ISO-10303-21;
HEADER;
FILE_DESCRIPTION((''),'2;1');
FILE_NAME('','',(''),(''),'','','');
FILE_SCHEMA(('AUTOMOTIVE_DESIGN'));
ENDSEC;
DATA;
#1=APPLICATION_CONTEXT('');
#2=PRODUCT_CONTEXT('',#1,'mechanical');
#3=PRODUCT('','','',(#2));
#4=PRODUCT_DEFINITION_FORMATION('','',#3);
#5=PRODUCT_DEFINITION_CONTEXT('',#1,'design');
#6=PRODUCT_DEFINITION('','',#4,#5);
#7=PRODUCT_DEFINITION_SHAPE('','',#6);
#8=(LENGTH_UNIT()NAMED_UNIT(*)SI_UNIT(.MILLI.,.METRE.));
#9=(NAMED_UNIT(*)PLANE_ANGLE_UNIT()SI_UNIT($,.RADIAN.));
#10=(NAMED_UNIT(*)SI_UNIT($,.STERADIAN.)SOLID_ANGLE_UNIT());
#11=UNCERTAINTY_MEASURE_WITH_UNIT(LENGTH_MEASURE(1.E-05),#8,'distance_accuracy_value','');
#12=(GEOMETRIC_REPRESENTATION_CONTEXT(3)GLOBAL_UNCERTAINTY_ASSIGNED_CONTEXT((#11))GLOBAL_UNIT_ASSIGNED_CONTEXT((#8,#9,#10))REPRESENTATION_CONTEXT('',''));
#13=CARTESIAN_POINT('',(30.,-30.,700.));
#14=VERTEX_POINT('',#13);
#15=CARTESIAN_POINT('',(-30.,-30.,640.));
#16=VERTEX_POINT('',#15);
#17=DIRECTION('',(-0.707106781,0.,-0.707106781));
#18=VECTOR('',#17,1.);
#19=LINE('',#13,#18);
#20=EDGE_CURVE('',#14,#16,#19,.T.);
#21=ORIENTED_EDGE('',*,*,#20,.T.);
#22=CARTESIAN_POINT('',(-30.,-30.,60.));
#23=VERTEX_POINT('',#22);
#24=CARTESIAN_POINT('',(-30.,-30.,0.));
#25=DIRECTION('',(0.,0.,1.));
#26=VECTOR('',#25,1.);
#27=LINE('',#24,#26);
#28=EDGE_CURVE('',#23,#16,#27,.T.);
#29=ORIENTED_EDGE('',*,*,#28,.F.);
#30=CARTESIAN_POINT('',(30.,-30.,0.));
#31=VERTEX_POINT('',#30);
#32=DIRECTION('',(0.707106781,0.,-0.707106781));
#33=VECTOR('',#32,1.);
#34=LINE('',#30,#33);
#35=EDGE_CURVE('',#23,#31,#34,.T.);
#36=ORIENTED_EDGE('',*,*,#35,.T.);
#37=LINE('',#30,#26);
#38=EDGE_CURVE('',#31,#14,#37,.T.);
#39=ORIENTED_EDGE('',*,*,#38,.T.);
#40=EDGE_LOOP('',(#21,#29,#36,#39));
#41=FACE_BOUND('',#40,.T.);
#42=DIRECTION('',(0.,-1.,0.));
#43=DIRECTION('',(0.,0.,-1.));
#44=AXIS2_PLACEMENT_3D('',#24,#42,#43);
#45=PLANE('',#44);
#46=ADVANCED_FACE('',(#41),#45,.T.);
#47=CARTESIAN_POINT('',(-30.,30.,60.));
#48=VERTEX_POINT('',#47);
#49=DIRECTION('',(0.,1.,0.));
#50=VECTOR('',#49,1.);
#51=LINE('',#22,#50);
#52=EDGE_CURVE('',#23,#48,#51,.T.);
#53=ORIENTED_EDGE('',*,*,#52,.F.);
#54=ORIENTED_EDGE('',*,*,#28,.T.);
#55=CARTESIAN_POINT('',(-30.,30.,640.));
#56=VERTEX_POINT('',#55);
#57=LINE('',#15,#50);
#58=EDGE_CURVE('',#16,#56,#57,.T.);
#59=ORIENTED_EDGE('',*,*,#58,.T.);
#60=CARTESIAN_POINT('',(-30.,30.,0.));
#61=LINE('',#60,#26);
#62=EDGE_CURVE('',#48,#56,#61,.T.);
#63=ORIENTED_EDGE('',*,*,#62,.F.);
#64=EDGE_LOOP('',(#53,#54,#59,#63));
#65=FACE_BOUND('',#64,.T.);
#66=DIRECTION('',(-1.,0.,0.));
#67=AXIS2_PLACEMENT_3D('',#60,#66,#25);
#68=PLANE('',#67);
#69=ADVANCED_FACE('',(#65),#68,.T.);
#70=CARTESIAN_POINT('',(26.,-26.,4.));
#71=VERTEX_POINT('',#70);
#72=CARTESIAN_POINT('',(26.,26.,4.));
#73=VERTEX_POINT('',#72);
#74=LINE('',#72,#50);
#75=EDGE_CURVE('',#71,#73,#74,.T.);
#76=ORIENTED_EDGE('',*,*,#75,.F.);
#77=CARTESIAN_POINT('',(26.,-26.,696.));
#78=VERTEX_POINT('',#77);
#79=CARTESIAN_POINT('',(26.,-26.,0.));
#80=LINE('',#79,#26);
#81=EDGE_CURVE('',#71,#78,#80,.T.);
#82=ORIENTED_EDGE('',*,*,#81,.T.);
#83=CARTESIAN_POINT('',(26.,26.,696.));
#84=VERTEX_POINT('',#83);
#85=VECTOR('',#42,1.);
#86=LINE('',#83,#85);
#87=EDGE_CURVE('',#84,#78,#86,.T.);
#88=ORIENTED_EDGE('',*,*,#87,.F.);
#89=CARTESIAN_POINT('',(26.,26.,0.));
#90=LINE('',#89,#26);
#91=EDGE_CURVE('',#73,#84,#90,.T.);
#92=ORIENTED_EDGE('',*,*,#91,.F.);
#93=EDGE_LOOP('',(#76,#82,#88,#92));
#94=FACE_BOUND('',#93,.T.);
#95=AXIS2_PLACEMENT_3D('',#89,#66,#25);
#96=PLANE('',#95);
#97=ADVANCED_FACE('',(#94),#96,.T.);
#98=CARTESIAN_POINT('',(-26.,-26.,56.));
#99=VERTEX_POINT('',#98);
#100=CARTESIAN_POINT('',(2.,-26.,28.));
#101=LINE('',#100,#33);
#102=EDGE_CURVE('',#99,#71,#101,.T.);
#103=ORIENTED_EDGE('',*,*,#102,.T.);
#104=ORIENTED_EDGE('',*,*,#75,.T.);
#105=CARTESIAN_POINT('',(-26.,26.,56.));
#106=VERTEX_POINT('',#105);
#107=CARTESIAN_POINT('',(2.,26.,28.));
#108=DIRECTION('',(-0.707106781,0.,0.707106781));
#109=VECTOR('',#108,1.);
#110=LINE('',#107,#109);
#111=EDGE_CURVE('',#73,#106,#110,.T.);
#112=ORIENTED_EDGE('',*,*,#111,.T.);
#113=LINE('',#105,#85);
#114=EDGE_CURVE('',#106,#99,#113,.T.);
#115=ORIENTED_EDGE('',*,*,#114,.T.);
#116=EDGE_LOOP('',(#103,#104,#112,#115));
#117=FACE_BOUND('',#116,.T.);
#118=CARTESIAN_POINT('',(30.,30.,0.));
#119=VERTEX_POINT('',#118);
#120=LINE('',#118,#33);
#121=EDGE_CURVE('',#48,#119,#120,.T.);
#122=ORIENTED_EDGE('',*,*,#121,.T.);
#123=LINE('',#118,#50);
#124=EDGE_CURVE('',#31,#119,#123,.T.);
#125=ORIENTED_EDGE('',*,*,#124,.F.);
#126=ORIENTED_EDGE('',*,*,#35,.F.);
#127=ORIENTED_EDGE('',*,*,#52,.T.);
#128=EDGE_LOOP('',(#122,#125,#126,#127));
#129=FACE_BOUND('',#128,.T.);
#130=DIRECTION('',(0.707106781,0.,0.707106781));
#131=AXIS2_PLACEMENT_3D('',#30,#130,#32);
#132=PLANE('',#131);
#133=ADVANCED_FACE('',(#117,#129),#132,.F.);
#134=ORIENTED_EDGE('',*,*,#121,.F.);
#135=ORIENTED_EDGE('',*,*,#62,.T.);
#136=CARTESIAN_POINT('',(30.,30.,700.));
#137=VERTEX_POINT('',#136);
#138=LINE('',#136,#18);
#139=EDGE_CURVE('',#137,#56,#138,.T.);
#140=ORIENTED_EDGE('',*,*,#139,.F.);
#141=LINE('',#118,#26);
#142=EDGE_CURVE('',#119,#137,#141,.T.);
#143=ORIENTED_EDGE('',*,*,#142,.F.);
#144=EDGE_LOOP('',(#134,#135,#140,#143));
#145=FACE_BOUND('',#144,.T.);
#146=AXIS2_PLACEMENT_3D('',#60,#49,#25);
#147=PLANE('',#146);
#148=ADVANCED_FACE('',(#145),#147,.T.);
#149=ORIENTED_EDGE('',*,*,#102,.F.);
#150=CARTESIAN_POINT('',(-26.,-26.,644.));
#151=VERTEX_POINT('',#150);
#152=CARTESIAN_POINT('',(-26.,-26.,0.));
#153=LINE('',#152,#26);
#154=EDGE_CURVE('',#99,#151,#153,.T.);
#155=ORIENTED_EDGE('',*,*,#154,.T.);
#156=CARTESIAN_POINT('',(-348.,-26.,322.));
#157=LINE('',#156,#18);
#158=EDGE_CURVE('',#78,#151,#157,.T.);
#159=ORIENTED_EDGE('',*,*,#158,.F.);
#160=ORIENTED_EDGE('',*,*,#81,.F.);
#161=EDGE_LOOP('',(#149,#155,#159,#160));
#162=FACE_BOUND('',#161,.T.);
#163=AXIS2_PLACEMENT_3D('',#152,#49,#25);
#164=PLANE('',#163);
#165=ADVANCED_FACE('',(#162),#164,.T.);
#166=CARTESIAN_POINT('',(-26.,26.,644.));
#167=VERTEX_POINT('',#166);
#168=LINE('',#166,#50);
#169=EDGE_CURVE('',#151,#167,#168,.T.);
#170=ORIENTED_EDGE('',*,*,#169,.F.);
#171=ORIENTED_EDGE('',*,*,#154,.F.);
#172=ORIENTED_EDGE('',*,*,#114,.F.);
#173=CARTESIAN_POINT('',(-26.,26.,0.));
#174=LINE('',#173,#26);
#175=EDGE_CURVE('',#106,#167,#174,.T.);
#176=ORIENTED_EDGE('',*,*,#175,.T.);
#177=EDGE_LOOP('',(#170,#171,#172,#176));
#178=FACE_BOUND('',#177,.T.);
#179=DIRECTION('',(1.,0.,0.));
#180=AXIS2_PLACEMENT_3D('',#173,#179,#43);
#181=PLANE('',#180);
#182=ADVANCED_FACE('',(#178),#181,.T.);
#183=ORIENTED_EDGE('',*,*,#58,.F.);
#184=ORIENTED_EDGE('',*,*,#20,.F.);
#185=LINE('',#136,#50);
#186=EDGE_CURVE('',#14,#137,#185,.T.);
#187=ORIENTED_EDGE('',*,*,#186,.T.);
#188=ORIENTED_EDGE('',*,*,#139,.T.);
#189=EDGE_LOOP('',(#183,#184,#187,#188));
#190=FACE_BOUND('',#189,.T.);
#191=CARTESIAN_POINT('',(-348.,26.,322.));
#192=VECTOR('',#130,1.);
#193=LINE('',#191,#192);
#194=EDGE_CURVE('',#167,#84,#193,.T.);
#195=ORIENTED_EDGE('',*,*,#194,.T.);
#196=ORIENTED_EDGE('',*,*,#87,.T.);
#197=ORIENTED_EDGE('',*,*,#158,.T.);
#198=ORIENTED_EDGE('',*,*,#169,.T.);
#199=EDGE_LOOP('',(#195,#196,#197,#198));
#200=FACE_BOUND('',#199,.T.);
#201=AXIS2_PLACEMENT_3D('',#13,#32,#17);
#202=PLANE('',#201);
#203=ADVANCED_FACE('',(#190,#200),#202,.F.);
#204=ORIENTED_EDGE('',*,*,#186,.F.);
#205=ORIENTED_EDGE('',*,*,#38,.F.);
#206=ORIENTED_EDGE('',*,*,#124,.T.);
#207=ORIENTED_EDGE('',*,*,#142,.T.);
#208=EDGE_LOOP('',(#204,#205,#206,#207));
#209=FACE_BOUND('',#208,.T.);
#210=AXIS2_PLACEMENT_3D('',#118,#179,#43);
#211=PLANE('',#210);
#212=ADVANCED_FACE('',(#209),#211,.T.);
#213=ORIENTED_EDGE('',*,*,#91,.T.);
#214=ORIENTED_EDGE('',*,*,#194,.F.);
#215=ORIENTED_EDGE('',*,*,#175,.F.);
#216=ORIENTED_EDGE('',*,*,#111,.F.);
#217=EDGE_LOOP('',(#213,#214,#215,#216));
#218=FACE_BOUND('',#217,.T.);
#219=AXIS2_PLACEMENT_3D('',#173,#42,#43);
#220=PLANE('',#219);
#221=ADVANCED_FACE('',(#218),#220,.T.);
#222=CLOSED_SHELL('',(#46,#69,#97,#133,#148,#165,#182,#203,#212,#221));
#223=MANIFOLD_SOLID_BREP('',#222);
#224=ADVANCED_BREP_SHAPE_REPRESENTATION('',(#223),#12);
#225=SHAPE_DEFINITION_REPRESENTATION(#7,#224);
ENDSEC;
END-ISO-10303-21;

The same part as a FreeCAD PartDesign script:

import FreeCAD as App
import Part
import Sketcher

doc = App.newDocument("Part")
body = doc.addObject("PartDesign::Body", "Body")

# Sketch on XY plane
sketch1 = doc.addObject("Sketcher::SketchObject", "Sketch")
body.addObject(sketch1)
sketch1.AttachmentSupport = (doc.XY_Plane, [""])
sketch1.MapMode = "FlatFace"
sketch1.addGeometry([
    Part.LineSegment(App.Vector(-30, 30, 0), App.Vector(-30, -30, 0)),  # 0
    Part.LineSegment(App.Vector(-30, -30, 0), App.Vector(30, -30, 0)),  # 1
    Part.LineSegment(App.Vector(30, -30, 0), App.Vector(30, 30, 0)),  # 2
    Part.LineSegment(App.Vector(30, 30, 0), App.Vector(-30, 30, 0)),  # 3
    Part.LineSegment(App.Vector(26, -26, 0), App.Vector(-26, -26, 0)),  # 4
    Part.LineSegment(App.Vector(-26, -26, 0), App.Vector(-26, 26, 0)),  # 5
    Part.LineSegment(App.Vector(-26, 26, 0), App.Vector(26, 26, 0)),  # 6
    Part.LineSegment(App.Vector(26, 26, 0), App.Vector(26, -26, 0)),  # 7
], False)
sketch1.addConstraint([
    Sketcher.Constraint("Coincident", 0, 2, 1, 1),
    Sketcher.Constraint("Coincident", 1, 2, 2, 1),
    Sketcher.Constraint("Coincident", 2, 2, 3, 1),
    Sketcher.Constraint("Coincident", 3, 2, 0, 1),
    Sketcher.Constraint("Coincident", 4, 2, 5, 1),
    Sketcher.Constraint("Coincident", 5, 2, 6, 1),
    Sketcher.Constraint("Coincident", 6, 2, 7, 1),
    Sketcher.Constraint("Coincident", 7, 2, 4, 1),
    Sketcher.Constraint("Vertical", 0),
    Sketcher.Constraint("Horizontal", 1),
    Sketcher.Constraint("Vertical", 2),
    Sketcher.Constraint("Horizontal", 3),
    Sketcher.Constraint("Horizontal", 4),
    Sketcher.Constraint("Vertical", 5),
    Sketcher.Constraint("Horizontal", 6),
    Sketcher.Constraint("Vertical", 7),
    Sketcher.Constraint("Symmetric", 0, 2, 2, 2, -1, 1),
    Sketcher.Constraint("Symmetric", 4, 2, 6, 2, -1, 1),
    Sketcher.Constraint("Equal", 3, 0),
    Sketcher.Constraint("Equal", 6, 5),
    Sketcher.Constraint("DistanceX", 1, 1, 1, 2, 60.0),
    Sketcher.Constraint("DistanceX", 4, 2, 4, 1, 52.0),
])

# Sketch on XZ plane
sketch2 = doc.addObject("Sketcher::SketchObject", "Sketch001")
body.addObject(sketch2)
sketch2.AttachmentSupport = (doc.XZ_Plane, [""])
sketch2.MapMode = "FlatFace"
sketch2.addGeometry(Part.BSplineCurve([App.Vector(0, 0, 0), App.Vector(0, 700, 0)], [2, 2], [0, 1], False, 1, [1, 1], False), False)
sketch2.addConstraint(Sketcher.Constraint("Block", 0))
doc.recompute()

additivepipe = doc.addObject("PartDesign::AdditivePipe", "AdditivePipe")
body.addObject(additivepipe)
additivepipe.Profile = sketch1
additivepipe.Spine = (sketch2, ["Edge1"])

# Sketch on XZ plane
sketch3 = doc.addObject("Sketcher::SketchObject", "Sketch002")
body.addObject(sketch3)
sketch3.AttachmentSupport = (doc.XZ_Plane, [""])
sketch3.MapMode = "FlatFace"
sketch3.AttachmentOffset = App.Placement(App.Vector(0, 0, -30), App.Rotation())
sketch3.addGeometry([
    Part.LineSegment(App.Vector(-30, 60, 0), App.Vector(30, 0, 0)),  # 0
    Part.LineSegment(App.Vector(30, 0, 0), App.Vector(-30, 0, 0)),  # 1
    Part.LineSegment(App.Vector(-30, 0, 0), App.Vector(-30, 60, 0)),  # 2
    Part.LineSegment(App.Vector(30, 700, 0), App.Vector(-30, 640, 0)),  # 3
    Part.LineSegment(App.Vector(-30, 640, 0), App.Vector(-30, 700, 0)),  # 4
    Part.LineSegment(App.Vector(-30, 700, 0), App.Vector(30, 700, 0)),  # 5
], False)
sketch3.addConstraint([
    Sketcher.Constraint("Coincident", 0, 2, 1, 1),
    Sketcher.Constraint("Coincident", 1, 2, 2, 1),
    Sketcher.Constraint("Coincident", 2, 2, 0, 1),
    Sketcher.Constraint("Coincident", 3, 2, 4, 1),
    Sketcher.Constraint("Coincident", 4, 2, 5, 1),
    Sketcher.Constraint("Coincident", 5, 2, 3, 1),
    Sketcher.Constraint("Horizontal", 1),
    Sketcher.Constraint("Vertical", 2),
    Sketcher.Constraint("Vertical", 4),
    Sketcher.Constraint("Horizontal", 5),
    Sketcher.Constraint("Symmetric", 0, 2, 1, 2, -1, 1),
    Sketcher.Constraint("Perpendicular", 0, 3),
    Sketcher.Constraint("Vertical", 2, 2, 3, 2),
    Sketcher.Constraint("Vertical", 0, 2, 5, 2),
    Sketcher.Constraint("Equal", 5, 2),
    Sketcher.Constraint("DistanceX", 1, 2, 1, 1, 60.0),
    Sketcher.Constraint("DistanceY", -1, 1, 3, 2, 640.0),
])
pocket1 = doc.addObject("PartDesign::Pocket", "Pocket")
body.addObject(pocket1)
pocket1.Profile = sketch3
pocket1.Type = "ThroughAll"
pocket1.Reversed = True

doc.recompute()
